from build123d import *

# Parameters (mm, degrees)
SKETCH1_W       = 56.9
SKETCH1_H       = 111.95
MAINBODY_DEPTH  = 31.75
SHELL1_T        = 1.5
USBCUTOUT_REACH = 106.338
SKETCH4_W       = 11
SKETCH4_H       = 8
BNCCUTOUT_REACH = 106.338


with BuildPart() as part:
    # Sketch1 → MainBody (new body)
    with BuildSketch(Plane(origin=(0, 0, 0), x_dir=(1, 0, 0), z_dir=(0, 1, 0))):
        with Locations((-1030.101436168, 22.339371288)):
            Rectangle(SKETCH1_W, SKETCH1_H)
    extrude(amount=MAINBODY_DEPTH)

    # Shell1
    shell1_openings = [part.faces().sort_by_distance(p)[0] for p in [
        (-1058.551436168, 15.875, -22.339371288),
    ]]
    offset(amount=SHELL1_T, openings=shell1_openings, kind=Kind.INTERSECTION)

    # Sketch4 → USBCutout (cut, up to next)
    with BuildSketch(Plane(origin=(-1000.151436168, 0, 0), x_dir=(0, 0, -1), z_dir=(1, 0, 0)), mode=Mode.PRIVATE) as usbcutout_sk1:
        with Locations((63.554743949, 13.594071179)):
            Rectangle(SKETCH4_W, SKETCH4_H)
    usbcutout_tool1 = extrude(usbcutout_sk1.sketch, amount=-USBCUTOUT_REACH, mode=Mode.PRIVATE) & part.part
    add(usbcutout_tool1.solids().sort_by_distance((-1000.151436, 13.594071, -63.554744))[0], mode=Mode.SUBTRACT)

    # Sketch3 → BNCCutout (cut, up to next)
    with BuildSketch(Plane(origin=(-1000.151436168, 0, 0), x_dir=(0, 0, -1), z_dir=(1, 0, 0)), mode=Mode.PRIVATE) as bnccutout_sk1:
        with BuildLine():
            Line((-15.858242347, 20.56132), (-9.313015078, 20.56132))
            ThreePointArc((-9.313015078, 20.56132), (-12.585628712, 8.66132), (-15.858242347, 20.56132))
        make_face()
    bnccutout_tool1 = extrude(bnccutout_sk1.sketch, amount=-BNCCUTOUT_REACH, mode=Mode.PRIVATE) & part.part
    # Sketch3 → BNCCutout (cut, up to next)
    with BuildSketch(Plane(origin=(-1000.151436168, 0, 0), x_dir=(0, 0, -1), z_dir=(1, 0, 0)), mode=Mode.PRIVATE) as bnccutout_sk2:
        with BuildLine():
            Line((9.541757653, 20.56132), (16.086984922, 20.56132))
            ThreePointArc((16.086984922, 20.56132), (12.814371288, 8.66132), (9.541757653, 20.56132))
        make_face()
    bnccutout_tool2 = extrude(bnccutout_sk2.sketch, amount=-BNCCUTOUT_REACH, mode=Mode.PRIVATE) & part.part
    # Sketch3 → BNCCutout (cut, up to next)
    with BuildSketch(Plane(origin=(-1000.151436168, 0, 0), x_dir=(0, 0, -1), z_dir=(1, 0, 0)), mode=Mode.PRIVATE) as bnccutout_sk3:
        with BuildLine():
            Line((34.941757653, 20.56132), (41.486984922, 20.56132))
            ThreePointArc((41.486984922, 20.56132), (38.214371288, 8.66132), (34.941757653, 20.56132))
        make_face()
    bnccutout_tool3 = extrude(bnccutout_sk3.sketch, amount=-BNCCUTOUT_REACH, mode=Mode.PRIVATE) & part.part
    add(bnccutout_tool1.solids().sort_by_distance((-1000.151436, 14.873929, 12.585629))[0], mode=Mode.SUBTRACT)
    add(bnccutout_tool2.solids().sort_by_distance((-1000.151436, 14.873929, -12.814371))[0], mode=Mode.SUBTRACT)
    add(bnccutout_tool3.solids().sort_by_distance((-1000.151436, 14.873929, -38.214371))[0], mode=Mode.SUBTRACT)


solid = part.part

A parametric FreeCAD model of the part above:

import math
import FreeCAD as App
import Part
import Sketcher
from FreeCAD import Vector
Q = App.Units.Quantity


def faces_at(feature, points):
    """Names of the faces that lie closest to the given points."""
    faces = feature.Shape.Faces
    near = lambda p: min(range(len(faces)), key=lambda i: faces[i].distToShape(Part.Vertex(*p))[0])
    return sorted({f"Face{near(p) + 1}" for p in points})


def add_polygon(sketch, points):
    """Adds a closed chain of lines whose ends are joined by coincident constraints."""
    first, n = sketch.GeometryCount, len(points)
    for a, b in zip(points, points[1:] + points[:1]):
        sketch.addGeometry(Part.LineSegment(App.Vector(*a, 0), App.Vector(*b, 0)), False)
    for i in range(n):
        sketch.addConstraint(Sketcher.Constraint("Coincident", first + i, 2, first + (i + 1) % n, 1))

doc = App.newDocument("Part")
body = doc.addObject("PartDesign::Body", "Body")

# Sketch on XZ plane
sketch1 = body.newObject("Sketcher::SketchObject", "Sketch")
sketch1.AttachmentSupport = (doc.getObject("XZ_Plane"), [""])
sketch1.MapMode = "FlatFace"
add_polygon(sketch1, [(-1058.551436, -78.314371), (-1058.551436, 33.635629), (-1001.651436, 33.635629), (-1001.651436, -78.314371)])  # lines 0-3
sketch1.addConstraint([
    Sketcher.Constraint("Vertical", 0),
    Sketcher.Constraint("Horizontal", 1),
    Sketcher.Constraint("Vertical", 2),
    Sketcher.Constraint("Horizontal", 3),
    Sketcher.Constraint("DistanceX", 1, 1, 1, 2, Q("56.9 mm")),
    Sketcher.Constraint("DistanceY", 0, 1, 0, 2, Q("111.95 mm")),
    Sketcher.Constraint("DistanceY", -1, 1, 0, 2, Q("33.635629 mm")),
    Sketcher.Constraint("DistanceX", 0, 2, -1, 1, Q("1058.551436 mm")),
])
pad1 = body.newObject("PartDesign::Pad", "Pad")
pad1.Profile = sketch1
pad1.Length = 31.75
pad1.Reversed = True
doc.recompute()

thickness = body.newObject("PartDesign::Thickness", "Thickness")
thickness.Base = (pad1, faces_at(pad1, [(-1058.551, 15.875, -22.339)]))
thickness.Value = 1.5
thickness.Reversed = False
thickness.Join = "Intersection"

# Sketch on YZ plane
sketch2 = body.newObject("Sketcher::SketchObject", "Sketch001")
sketch2.AttachmentSupport = (doc.getObject("YZ_Plane"), [""])
sketch2.MapMode = "FlatFace"
sketch2.AttachmentOffset = App.Placement(Vector(0, 0, -1000.151436), App.Rotation())
add_polygon(sketch2, [(17.594071, -58.054744), (9.594071, -58.054744), (9.594071, -69.054744), (17.594071, -69.054744)])  # lines 0-3
sketch2.addConstraint([
    Sketcher.Constraint("Horizontal", 0),
    Sketcher.Constraint("Vertical", 1),
    Sketcher.Constraint("Horizontal", 2),
    Sketcher.Constraint("Vertical", 3),
    Sketcher.Constraint("DistanceX", 0, 2, 0, 1, Q("8 mm")),
    Sketcher.Constraint("DistanceY", 1, 2, 1, 1, Q("11 mm")),
    Sketcher.Constraint("DistanceX", -1, 1, 0, 2, Q("9.594071 mm")),
    Sketcher.Constraint("DistanceY", 0, 2, -1, 1, Q("58.054744 mm")),
])
pocket1 = body.newObject("PartDesign::Pocket", "Pocket")
pocket1.Profile = sketch2
pocket1.Type = "UpToFirst"

# Sketch on YZ plane
sketch3 = body.newObject("Sketcher::SketchObject", "Sketch002")
sketch3.AttachmentSupport = (doc.getObject("YZ_Plane"), [""])
sketch3.MapMode = "FlatFace"
sketch3.AttachmentOffset = App.Placement(Vector(0, 0, -1000.151436), App.Rotation())
sketch3.addGeometry([
    Part.LineSegment(Vector(20.56132, 9.313015, 0), Vector(20.56132, 15.858242, 0)),
    Part.ArcOfCircle(Part.Circle(Vector(15.06132, 12.585629, 0), Vector(0, 0, 1), 6.4), math.radians(30.75352), math.radians(329.24648)),
], False)
sketch3.addConstraint([
    Sketcher.Constraint("Coincident", 0, 1, 1, 2),
    Sketcher.Constraint("Coincident", 1, 1, 0, 2),
    Sketcher.Constraint("Vertical", 0),
    Sketcher.Constraint("Radius", 1, Q("6.4 mm")),
    Sketcher.Constraint("DistanceX", 1, 3, 0, 1, Q("5.5 mm")),
    Sketcher.Constraint("DistanceX", -1, 1, 1, 3, Q("15.06132 mm")),
    Sketcher.Constraint("DistanceY", -1, 1, 1, 3, Q("12.585629 mm")),
])
pocket2 = body.newObject("PartDesign::Pocket", "Pocket001")
pocket2.Profile = sketch3
pocket2.Type = "UpToFirst"

# Sketch on YZ plane
sketch4 = body.newObject("Sketcher::SketchObject", "Sketch003")
sketch4.AttachmentSupport = (doc.getObject("YZ_Plane"), [""])
sketch4.MapMode = "FlatFace"
sketch4.AttachmentOffset = App.Placement(Vector(0, 0, -1000.151436), App.Rotation())
sketch4.addGeometry([
    Part.LineSegment(Vector(20.56132, -16.086985, 0), Vector(20.56132, -9.541758, 0)),
    Part.ArcOfCircle(Part.Circle(Vector(15.06132, -12.814371, 0), Vector(0, 0, 1), 6.4), math.radians(30.75352), math.radians(329.24648)),
], False)
sketch4.addConstraint([
    Sketcher.Constraint("Coincident", 0, 1, 1, 2),
    Sketcher.Constraint("Coincident", 1, 1, 0, 2),
    Sketcher.Constraint("Vertical", 0),
    Sketcher.Constraint("Radius", 1, Q("6.4 mm")),
    Sketcher.Constraint("DistanceX", 1, 3, 0, 1, Q("5.5 mm")),
    Sketcher.Constraint("DistanceX", -1, 1, 1, 3, Q("15.06132 mm")),
    Sketcher.Constraint("DistanceY", 1, 3, -1, 1, Q("12.814371 mm")),
])
pocket3 = body.newObject("PartDesign::Pocket", "Pocket002")
pocket3.Profile = sketch4
pocket3.Type = "UpToFirst"

# Sketch on YZ plane
sketch5 = body.newObject("Sketcher::SketchObject", "Sketch004")
sketch5.AttachmentSupport = (doc.getObject("YZ_Plane"), [""])
sketch5.MapMode = "FlatFace"
sketch5.AttachmentOffset = App.Placement(Vector(0, 0, -1000.151436), App.Rotation())
sketch5.addGeometry([
    Part.LineSegment(Vector(20.56132, -41.486985, 0), Vector(20.56132, -34.941758, 0)),
    Part.ArcOfCircle(Part.Circle(Vector(15.06132, -38.214371, 0), Vector(0, 0, 1), 6.4), math.radians(30.75352), math.radians(329.24648)),
], False)
sketch5.addConstraint([
    Sketcher.Constraint("Coincident", 0, 1, 1, 2),
    Sketcher.Constraint("Coincident", 1, 1, 0, 2),
    Sketcher.Constraint("Vertical", 0),
    Sketcher.Constraint("Radius", 1, Q("6.4 mm")),
    Sketcher.Constraint("DistanceX", 1, 3, 0, 1, Q("5.5 mm")),
    Sketcher.Constraint("DistanceX", -1, 1, 1, 3, Q("15.06132 mm")),
    Sketcher.Constraint("DistanceY", 1, 3, -1, 1, Q("38.214371 mm")),
])
pocket4 = body.newObject("PartDesign::Pocket", "Pocket003")
pocket4.Profile = sketch5
pocket4.Type = "UpToFirst"

doc.recompute()
